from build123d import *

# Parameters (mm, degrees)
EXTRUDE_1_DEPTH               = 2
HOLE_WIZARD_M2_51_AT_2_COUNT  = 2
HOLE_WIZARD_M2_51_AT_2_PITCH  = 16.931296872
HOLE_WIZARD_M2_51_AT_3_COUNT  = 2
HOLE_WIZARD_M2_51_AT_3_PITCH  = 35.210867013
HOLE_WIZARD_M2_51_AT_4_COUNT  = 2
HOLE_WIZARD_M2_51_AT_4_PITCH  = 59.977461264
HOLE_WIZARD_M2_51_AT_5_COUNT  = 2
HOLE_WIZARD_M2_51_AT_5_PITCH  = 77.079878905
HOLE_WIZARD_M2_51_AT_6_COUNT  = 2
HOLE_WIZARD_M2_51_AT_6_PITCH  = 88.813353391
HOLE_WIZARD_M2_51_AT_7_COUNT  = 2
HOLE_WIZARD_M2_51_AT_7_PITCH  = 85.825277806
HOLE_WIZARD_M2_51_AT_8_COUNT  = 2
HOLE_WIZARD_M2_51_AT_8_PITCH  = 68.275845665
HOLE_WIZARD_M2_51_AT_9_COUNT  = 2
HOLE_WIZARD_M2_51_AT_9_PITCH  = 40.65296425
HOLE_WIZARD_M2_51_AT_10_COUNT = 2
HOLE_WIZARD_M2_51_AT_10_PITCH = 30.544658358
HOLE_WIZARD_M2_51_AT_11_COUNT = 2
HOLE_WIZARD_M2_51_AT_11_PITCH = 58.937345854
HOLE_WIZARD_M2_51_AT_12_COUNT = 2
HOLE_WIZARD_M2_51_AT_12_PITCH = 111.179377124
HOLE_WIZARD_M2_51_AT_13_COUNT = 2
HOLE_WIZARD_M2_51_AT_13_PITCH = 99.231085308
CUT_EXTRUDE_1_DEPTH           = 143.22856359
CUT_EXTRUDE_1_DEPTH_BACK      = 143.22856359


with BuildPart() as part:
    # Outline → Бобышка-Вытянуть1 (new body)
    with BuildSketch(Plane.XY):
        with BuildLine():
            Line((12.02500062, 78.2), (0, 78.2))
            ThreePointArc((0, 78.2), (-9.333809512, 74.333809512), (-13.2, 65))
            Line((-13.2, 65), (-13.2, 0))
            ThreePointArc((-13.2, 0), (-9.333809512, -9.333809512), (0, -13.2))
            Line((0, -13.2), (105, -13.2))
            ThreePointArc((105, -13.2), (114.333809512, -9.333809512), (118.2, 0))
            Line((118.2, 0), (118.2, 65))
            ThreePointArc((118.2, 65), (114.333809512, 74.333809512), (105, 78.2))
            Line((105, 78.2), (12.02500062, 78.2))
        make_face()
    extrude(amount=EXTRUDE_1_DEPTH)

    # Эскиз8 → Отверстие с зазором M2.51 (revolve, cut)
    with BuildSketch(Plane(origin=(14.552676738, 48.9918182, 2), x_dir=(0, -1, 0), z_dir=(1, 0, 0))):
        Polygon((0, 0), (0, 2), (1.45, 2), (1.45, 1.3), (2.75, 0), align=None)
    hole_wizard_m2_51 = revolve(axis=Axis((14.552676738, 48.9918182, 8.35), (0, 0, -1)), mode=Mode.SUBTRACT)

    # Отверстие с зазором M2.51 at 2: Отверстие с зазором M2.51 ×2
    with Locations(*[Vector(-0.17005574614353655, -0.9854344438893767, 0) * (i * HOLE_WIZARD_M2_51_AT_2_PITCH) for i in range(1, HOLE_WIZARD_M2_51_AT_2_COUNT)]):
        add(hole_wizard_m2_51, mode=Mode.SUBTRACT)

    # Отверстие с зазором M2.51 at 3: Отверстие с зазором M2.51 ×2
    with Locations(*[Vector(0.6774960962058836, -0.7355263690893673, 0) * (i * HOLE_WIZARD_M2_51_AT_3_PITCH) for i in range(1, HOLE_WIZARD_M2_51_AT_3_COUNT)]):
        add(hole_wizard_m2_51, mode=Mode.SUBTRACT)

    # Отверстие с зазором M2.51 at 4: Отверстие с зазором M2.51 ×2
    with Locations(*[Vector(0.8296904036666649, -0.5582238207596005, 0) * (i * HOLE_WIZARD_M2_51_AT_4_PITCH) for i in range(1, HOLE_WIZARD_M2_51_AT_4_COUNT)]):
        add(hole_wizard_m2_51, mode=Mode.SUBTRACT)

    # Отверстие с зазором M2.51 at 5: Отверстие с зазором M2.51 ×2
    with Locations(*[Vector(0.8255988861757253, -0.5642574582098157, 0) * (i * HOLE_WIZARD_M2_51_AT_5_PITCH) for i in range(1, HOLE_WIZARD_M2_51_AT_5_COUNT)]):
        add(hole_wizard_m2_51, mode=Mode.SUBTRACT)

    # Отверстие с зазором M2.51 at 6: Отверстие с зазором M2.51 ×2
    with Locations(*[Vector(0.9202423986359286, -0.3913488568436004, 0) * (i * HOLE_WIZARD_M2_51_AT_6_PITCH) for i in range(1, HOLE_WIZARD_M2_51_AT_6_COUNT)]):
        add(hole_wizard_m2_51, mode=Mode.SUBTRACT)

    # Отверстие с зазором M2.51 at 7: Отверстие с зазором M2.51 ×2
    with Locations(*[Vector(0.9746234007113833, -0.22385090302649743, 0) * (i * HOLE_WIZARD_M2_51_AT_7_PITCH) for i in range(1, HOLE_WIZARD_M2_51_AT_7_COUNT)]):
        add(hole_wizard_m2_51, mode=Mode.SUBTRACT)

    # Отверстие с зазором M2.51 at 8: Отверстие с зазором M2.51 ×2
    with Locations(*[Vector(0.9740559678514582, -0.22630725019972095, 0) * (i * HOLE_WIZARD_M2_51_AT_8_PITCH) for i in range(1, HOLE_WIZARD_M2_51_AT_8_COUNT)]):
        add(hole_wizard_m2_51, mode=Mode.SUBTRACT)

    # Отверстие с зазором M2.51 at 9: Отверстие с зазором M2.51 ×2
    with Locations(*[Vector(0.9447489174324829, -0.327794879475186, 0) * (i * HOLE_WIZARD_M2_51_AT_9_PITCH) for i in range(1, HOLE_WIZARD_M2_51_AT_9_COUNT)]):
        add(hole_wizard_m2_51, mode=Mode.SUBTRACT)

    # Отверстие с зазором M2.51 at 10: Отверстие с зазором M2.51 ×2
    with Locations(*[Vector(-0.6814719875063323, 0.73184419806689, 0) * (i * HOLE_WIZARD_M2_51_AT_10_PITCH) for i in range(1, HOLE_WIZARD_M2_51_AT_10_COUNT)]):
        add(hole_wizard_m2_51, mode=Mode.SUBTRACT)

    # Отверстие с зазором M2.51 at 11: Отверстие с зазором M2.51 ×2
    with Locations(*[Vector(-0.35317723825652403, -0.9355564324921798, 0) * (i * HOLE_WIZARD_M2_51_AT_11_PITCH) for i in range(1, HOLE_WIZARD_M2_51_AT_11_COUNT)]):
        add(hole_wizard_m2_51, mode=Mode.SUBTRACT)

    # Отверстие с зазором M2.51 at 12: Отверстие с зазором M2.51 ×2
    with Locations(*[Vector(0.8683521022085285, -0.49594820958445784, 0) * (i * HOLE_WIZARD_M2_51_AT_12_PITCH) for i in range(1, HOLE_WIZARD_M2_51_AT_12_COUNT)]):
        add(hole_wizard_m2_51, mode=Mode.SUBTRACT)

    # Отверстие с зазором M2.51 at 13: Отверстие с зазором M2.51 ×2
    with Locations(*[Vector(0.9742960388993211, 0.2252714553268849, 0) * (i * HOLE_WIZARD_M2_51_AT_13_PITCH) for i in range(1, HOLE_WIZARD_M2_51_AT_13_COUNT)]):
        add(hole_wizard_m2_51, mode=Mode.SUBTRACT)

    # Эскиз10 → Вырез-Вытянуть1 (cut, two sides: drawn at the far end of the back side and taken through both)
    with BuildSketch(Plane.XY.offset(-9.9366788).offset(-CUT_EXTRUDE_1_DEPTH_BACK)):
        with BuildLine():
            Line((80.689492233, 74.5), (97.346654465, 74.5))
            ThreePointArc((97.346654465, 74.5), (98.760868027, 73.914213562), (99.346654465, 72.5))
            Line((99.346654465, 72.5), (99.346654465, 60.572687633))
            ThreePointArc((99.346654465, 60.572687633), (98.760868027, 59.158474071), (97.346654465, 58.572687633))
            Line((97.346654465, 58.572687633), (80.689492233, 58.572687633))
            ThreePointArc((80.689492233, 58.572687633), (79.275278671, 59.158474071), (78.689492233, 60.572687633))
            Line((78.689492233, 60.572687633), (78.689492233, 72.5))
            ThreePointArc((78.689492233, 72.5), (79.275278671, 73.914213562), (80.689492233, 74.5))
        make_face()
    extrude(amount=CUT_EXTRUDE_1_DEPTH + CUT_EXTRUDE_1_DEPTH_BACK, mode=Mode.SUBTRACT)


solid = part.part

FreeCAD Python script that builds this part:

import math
import FreeCAD as App
import Part
import Sketcher
from FreeCAD import Vector
Q = App.Units.Quantity

doc = App.newDocument("Part")
body = doc.addObject("PartDesign::Body", "Body")

# Sketch on XY plane
sketch1 = body.newObject("Sketcher::SketchObject", "Sketch")
sketch1.AttachmentSupport = (doc.getObject("XY_Plane"), [""])
sketch1.MapMode = "FlatFace"
sketch1.addGeometry([
    Part.ArcOfCircle(Part.Circle(Vector(0, 65, 0), Vector(0, 0, 1), 13.2), math.radians(90), math.radians(180)),  # 0
    Part.LineSegment(Vector(-13.2, 65, 0), Vector(-13.2, 0, 0)),  # 1
    Part.ArcOfCircle(Part.Circle(Vector(0, 0, 0), Vector(0, 0, 1), 13.2), math.radians(180), math.radians(270)),  # 2
    Part.LineSegment(Vector(0, -13.2, 0), Vector(105, -13.2, 0)),  # 3
    Part.ArcOfCircle(Part.Circle(Vector(105, 0, 0), Vector(0, 0, 1), 13.2), math.radians(-90), math.radians(0)),  # 4
    Part.LineSegment(Vector(118.2, 0, 0), Vector(118.2, 65, 0)),  # 5
    Part.ArcOfCircle(Part.Circle(Vector(105, 65, 0), Vector(0, 0, 1), 13.2), math.radians(0), math.radians(90)),  # 6
    Part.LineSegment(Vector(105, 78.2, 0), Vector(0, 78.2, 0)),  # 7
], False)
sketch1.addConstraint([
    Sketcher.Constraint("Tangent", 0, 2, 1, 1),
    Sketcher.Constraint("Tangent", 1, 2, 2, 1),
    Sketcher.Constraint("Tangent", 2, 2, 3, 1),
    Sketcher.Constraint("Tangent", 3, 2, 4, 1),
    Sketcher.Constraint("Tangent", 4, 2, 5, 1),
    Sketcher.Constraint("Tangent", 5, 2, 6, 1),
    Sketcher.Constraint("Tangent", 6, 2, 7, 1),
    Sketcher.Constraint("Tangent", 7, 2, 0, 1),
    Sketcher.Constraint("Vertical", 1),
    Sketcher.Constraint("Horizontal", 3),
    Sketcher.Constraint("Vertical", 5),
    Sketcher.Constraint("Horizontal", 7),
    Sketcher.Constraint("Coincident", 2, 3, -1, 1),
    Sketcher.Constraint("Equal", 0, 2),
    Sketcher.Constraint("Equal", 2, 4),
    Sketcher.Constraint("Equal", 4, 6),
    Sketcher.Constraint("Radius", 0, Q("13.2 mm")),
    Sketcher.Constraint("DistanceX", 3, 1, 3, 2, Q("105 mm")),
    Sketcher.Constraint("DistanceY", 1, 2, 1, 1, Q("65 mm")),
])
pad1 = body.newObject("PartDesign::Pad", "Pad")
pad1.Profile = sketch1
pad1.Length = 2

# Sketch on YZ plane
sketch2 = body.newObject("Sketcher::SketchObject", "Sketch001")
sketch2.AttachmentSupport = (doc.getObject("YZ_Plane"), [""])
sketch2.MapMode = "FlatFace"
sketch2.AttachmentOffset = App.Placement(Vector(0, 0, 14.552677), App.Rotation())
sketch2.addGeometry([
    Part.LineSegment(Vector(48.991818, 0, 0), Vector(48.991818, 2, 0)),  # 0
    Part.LineSegment(Vector(48.991818, 2, 0), Vector(46.241818, 2, 0)),  # 1
    Part.LineSegment(Vector(46.241818, 2, 0), Vector(47.541818, 0.7, 0)),  # 2
    Part.LineSegment(Vector(47.541818, 0.7, 0), Vector(47.541818, 0, 0)),  # 3
    Part.LineSegment(Vector(47.541818, 0, 0), Vector(48.991818, 0, 0)),  # 4
], False)
sketch2.addGeometry(Part.LineSegment(Vector(48.991818, 2, 0), Vector(48.991818, 0, 0)), True)  # axis
sketch2.addConstraint([
    Sketcher.Constraint("Coincident", 0, 2, 1, 1),
    Sketcher.Constraint("Coincident", 1, 2, 2, 1),
    Sketcher.Constraint("Coincident", 2, 2, 3, 1),
    Sketcher.Constraint("Coincident", 3, 2, 4, 1),
    Sketcher.Constraint("Coincident", 4, 2, 0, 1),
    Sketcher.Constraint("Vertical", 0),
    Sketcher.Constraint("Horizontal", 1),
    Sketcher.Constraint("Vertical", 3),
    Sketcher.Constraint("Horizontal", 4),
    Sketcher.Constraint("Vertical", 5),
    Sketcher.Constraint("Coincident", 5, 1, 0, 2),
    Sketcher.Constraint("PointOnObject", 3, 2, -1),
    Sketcher.Constraint("PointOnObject", 5, 2, -1),
    Sketcher.Constraint("DistanceY", 0, 1, 0, 2, Q("2 mm")),
    Sketcher.Constraint("Angle", 2, Q("-45 deg")),
    Sketcher.Constraint("DistanceY", 3, 2, 3, 1, Q("0.7 mm")),
    Sketcher.Constraint("DistanceX", 1, 2, 1, 1, Q("2.75 mm")),
    Sketcher.Constraint("DistanceX", -1, 1, 0, 2, Q("48.991818 mm")),
])
groove = body.newObject("PartDesign::Groove", "Groove")
groove.Profile = sketch2
groove.ReferenceAxis = (sketch2, ["Axis0"])
groove.Angle = 360
doc.recompute()

datumline = body.newObject("PartDesign::Line", "DatumLine")
datumline.Placement = App.Placement(Vector(0, 0, 0), App.Rotation(Vector(0, 0, 1), Vector(-0.170055746, -0.985434444, 0)))
linearpattern = body.newObject("PartDesign::LinearPattern", "LinearPattern")
linearpattern.Originals = [groove]
linearpattern.Direction = (datumline, [""])
linearpattern.Mode = "offset"
linearpattern.Offset = 16.931297
linearpattern.Occurrences = 2
body.Tip = linearpattern
doc.recompute()

datumline2 = body.newObject("PartDesign::Line", "DatumLine001")
datumline2.Placement = App.Placement(Vector(0, 0, 0), App.Rotation(Vector(0, 0, 1), Vector(0.677496096, -0.735526369, 0)))
linearpattern2 = body.newObject("PartDesign::LinearPattern", "LinearPattern001")
linearpattern2.Originals = [groove]
linearpattern2.Direction = (datumline2, [""])
linearpattern2.Mode = "offset"
linearpattern2.Offset = 35.210867
linearpattern2.Occurrences = 2
body.Tip = linearpattern2
doc.recompute()

datumline3 = body.newObject("PartDesign::Line", "DatumLine002")
datumline3.Placement = App.Placement(Vector(0, 0, 0), App.Rotation(Vector(0, 0, 1), Vector(0.829690404, -0.558223821, 0)))
linearpattern3 = body.newObject("PartDesign::LinearPattern", "LinearPattern002")
linearpattern3.Originals = [groove]
linearpattern3.Direction = (datumline3, [""])
linearpattern3.Mode = "offset"
linearpattern3.Offset = 59.977461
linearpattern3.Occurrences = 2
body.Tip = linearpattern3
doc.recompute()

datumline4 = body.newObject("PartDesign::Line", "DatumLine003")
datumline4.Placement = App.Placement(Vector(0, 0, 0), App.Rotation(Vector(0, 0, 1), Vector(0.825598886, -0.564257458, 0)))
linearpattern4 = body.newObject("PartDesign::LinearPattern", "LinearPattern003")
linearpattern4.Originals = [groove]
linearpattern4.Direction = (datumline4, [""])
linearpattern4.Mode = "offset"
linearpattern4.Offset = 77.079879
linearpattern4.Occurrences = 2
body.Tip = linearpattern4
doc.recompute()

datumline5 = body.newObject("PartDesign::Line", "DatumLine004")
datumline5.Placement = App.Placement(Vector(0, 0, 0), App.Rotation(Vector(0, 0, 1), Vector(0.920242399, -0.391348857, 0)))
linearpattern5 = body.newObject("PartDesign::LinearPattern", "LinearPattern004")
linearpattern5.Originals = [groove]
linearpattern5.Direction = (datumline5, [""])
linearpattern5.Mode = "offset"
linearpattern5.Offset = 88.813353
linearpattern5.Occurrences = 2
body.Tip = linearpattern5
doc.recompute()

datumline6 = body.newObject("PartDesign::Line", "DatumLine005")
datumline6.Placement = App.Placement(Vector(0, 0, 0), App.Rotation(Vector(0, 0, 1), Vector(0.974623401, -0.223850903, 0)))
linearpattern6 = body.newObject("PartDesign::LinearPattern", "LinearPattern005")
linearpattern6.Originals = [groove]
linearpattern6.Direction = (datumline6, [""])
linearpattern6.Mode = "offset"
linearpattern6.Offset = 85.825278
linearpattern6.Occurrences = 2
body.Tip = linearpattern6
doc.recompute()

datumline7 = body.newObject("PartDesign::Line", "DatumLine006")
datumline7.Placement = App.Placement(Vector(0, 0, 0), App.Rotation(Vector(0, 0, 1), Vector(0.974055968, -0.22630725, 0)))
linearpattern7 = body.newObject("PartDesign::LinearPattern", "LinearPattern006")
linearpattern7.Originals = [groove]
linearpattern7.Direction = (datumline7, [""])
linearpattern7.Mode = "offset"
linearpattern7.Offset = 68.275846
linearpattern7.Occurrences = 2
body.Tip = linearpattern7
doc.recompute()

datumline8 = body.newObject("PartDesign::Line", "DatumLine007")
datumline8.Placement = App.Placement(Vector(0, 0, 0), App.Rotation(Vector(0, 0, 1), Vector(0.944748917, -0.327794879, 0)))
linearpattern8 = body.newObject("PartDesign::LinearPattern", "LinearPattern007")
linearpattern8.Originals = [groove]
linearpattern8.Direction = (datumline8, [""])
linearpattern8.Mode = "offset"
linearpattern8.Offset = 40.652964
linearpattern8.Occurrences = 2
body.Tip = linearpattern8
doc.recompute()

datumline9 = body.newObject("PartDesign::Line", "DatumLine008")
datumline9.Placement = App.Placement(Vector(0, 0, 0), App.Rotation(Vector(0, 0, 1), Vector(-0.681471988, 0.731844198, 0)))
linearpattern9 = body.newObject("PartDesign::LinearPattern", "LinearPattern008")
linearpattern9.Originals = [groove]
linearpattern9.Direction = (datumline9, [""])
linearpattern9.Mode = "offset"
linearpattern9.Offset = 30.544658
linearpattern9.Occurrences = 2
body.Tip = linearpattern9
doc.recompute()

datumline10 = body.newObject("PartDesign::Line", "DatumLine009")
datumline10.Placement = App.Placement(Vector(0, 0, 0), App.Rotation(Vector(0, 0, 1), Vector(-0.353177238, -0.935556432, 0)))
linearpattern10 = body.newObject("PartDesign::LinearPattern", "LinearPattern009")
linearpattern10.Originals = [groove]
linearpattern10.Direction = (datumline10, [""])
linearpattern10.Mode = "offset"
linearpattern10.Offset = 58.937346
linearpattern10.Occurrences = 2
body.Tip = linearpattern10
doc.recompute()

datumline11 = body.newObject("PartDesign::Line", "DatumLine010")
datumline11.Placement = App.Placement(Vector(0, 0, 0), App.Rotation(Vector(0, 0, 1), Vector(0.868352102, -0.49594821, 0)))
linearpattern11 = body.newObject("PartDesign::LinearPattern", "LinearPattern010")
linearpattern11.Originals = [groove]
linearpattern11.Direction = (datumline11, [""])
linearpattern11.Mode = "offset"
linearpattern11.Offset = 111.179377
linearpattern11.Occurrences = 2
body.Tip = linearpattern11
doc.recompute()

datumline12 = body.newObject("PartDesign::Line", "DatumLine011")
datumline12.Placement = App.Placement(Vector(0, 0, 0), App.Rotation(Vector(0, 0, 1), Vector(0.974296039, 0.225271455, 0)))
linearpattern12 = body.newObject("PartDesign::LinearPattern", "LinearPattern011")
linearpattern12.Originals = [groove]
linearpattern12.Direction = (datumline12, [""])
linearpattern12.Mode = "offset"
linearpattern12.Offset = 99.231085
linearpattern12.Occurrences = 2
body.Tip = linearpattern12

# Sketch on XY plane
sketch3 = body.newObject("Sketcher::SketchObject", "Sketch002")
sketch3.AttachmentSupport = (doc.getObject("XY_Plane"), [""])
sketch3.MapMode = "FlatFace"
sketch3.AttachmentOffset = App.Placement(Vector(0, 0, -9.936679), App.Rotation())
sketch3.addGeometry([
    Part.LineSegment(Vector(97.346654, 74.5, 0), Vector(80.689492, 74.5, 0)),  # 0
    Part.ArcOfCircle(Part.Circle(Vector(80.689492, 72.5, 0), Vector(0, 0, 1), 2), math.radians(90), math.radians(180)),  # 1
    Part.LineSegment(Vector(78.689492, 72.5, 0), Vector(78.689492, 60.572688, 0)),  # 2
    Part.ArcOfCircle(Part.Circle(Vector(80.689492, 60.572688, 0), Vector(0, 0, 1), 2), math.radians(-180), math.radians(-90)),  # 3
    Part.LineSegment(Vector(80.689492, 58.572688, 0), Vector(97.346654, 58.572688, 0)),  # 4
    Part.ArcOfCircle(Part.Circle(Vector(97.346654, 60.572688, 0), Vector(0, 0, 1), 2), math.radians(-90), math.radians(0)),  # 5
    Part.LineSegment(Vector(99.346654, 60.572688, 0), Vector(99.346654, 72.5, 0)),  # 6
    Part.ArcOfCircle(Part.Circle(Vector(97.346654, 72.5, 0), Vector(0, 0, 1), 2), math.radians(0), math.radians(90)),  # 7
], False)
sketch3.addConstraint([
    Sketcher.Constraint("Tangent", 0, 2, 1, 1),
    Sketcher.Constraint("Tangent", 1, 2, 2, 1),
    Sketcher.Constraint("Tangent", 2, 2, 3, 1),
    Sketcher.Constraint("Tangent", 3, 2, 4, 1),
    Sketcher.Constraint("Tangent", 4, 2, 5, 1),
    Sketcher.Constraint("Tangent", 5, 2, 6, 1),
    Sketcher.Constraint("Tangent", 6, 2, 7, 1),
    Sketcher.Constraint("Tangent", 7, 2, 0, 1),
    Sketcher.Constraint("Horizontal", 0),
    Sketcher.Constraint("Vertical", 2),
    Sketcher.Constraint("Horizontal", 4),
    Sketcher.Constraint("Vertical", 6),
    Sketcher.Constraint("Equal", 1, 3),
    Sketcher.Constraint("Equal", 3, 5),
    Sketcher.Constraint("Equal", 5, 7),
    Sketcher.Constraint("Radius", 1, Q("2 mm")),
    Sketcher.Constraint("DistanceY", -1, 1, 1, 3, Q("72.5 mm")),
    Sketcher.Constraint("DistanceX", 0, 2, 0, 1, Q("16.657162 mm")),
    Sketcher.Constraint("DistanceY", 2, 2, 2, 1, Q("11.927312 mm")),
    Sketcher.Constraint("DistanceX", -1, 1, 1, 3, Q("80.689492 mm")),
])
pocket1 = body.newObject("PartDesign::Pocket", "Pocket")
pocket1.Profile = sketch3
pocket1.Type = "ThroughAll"
pocket1.Midplane = True

doc.recompute()
